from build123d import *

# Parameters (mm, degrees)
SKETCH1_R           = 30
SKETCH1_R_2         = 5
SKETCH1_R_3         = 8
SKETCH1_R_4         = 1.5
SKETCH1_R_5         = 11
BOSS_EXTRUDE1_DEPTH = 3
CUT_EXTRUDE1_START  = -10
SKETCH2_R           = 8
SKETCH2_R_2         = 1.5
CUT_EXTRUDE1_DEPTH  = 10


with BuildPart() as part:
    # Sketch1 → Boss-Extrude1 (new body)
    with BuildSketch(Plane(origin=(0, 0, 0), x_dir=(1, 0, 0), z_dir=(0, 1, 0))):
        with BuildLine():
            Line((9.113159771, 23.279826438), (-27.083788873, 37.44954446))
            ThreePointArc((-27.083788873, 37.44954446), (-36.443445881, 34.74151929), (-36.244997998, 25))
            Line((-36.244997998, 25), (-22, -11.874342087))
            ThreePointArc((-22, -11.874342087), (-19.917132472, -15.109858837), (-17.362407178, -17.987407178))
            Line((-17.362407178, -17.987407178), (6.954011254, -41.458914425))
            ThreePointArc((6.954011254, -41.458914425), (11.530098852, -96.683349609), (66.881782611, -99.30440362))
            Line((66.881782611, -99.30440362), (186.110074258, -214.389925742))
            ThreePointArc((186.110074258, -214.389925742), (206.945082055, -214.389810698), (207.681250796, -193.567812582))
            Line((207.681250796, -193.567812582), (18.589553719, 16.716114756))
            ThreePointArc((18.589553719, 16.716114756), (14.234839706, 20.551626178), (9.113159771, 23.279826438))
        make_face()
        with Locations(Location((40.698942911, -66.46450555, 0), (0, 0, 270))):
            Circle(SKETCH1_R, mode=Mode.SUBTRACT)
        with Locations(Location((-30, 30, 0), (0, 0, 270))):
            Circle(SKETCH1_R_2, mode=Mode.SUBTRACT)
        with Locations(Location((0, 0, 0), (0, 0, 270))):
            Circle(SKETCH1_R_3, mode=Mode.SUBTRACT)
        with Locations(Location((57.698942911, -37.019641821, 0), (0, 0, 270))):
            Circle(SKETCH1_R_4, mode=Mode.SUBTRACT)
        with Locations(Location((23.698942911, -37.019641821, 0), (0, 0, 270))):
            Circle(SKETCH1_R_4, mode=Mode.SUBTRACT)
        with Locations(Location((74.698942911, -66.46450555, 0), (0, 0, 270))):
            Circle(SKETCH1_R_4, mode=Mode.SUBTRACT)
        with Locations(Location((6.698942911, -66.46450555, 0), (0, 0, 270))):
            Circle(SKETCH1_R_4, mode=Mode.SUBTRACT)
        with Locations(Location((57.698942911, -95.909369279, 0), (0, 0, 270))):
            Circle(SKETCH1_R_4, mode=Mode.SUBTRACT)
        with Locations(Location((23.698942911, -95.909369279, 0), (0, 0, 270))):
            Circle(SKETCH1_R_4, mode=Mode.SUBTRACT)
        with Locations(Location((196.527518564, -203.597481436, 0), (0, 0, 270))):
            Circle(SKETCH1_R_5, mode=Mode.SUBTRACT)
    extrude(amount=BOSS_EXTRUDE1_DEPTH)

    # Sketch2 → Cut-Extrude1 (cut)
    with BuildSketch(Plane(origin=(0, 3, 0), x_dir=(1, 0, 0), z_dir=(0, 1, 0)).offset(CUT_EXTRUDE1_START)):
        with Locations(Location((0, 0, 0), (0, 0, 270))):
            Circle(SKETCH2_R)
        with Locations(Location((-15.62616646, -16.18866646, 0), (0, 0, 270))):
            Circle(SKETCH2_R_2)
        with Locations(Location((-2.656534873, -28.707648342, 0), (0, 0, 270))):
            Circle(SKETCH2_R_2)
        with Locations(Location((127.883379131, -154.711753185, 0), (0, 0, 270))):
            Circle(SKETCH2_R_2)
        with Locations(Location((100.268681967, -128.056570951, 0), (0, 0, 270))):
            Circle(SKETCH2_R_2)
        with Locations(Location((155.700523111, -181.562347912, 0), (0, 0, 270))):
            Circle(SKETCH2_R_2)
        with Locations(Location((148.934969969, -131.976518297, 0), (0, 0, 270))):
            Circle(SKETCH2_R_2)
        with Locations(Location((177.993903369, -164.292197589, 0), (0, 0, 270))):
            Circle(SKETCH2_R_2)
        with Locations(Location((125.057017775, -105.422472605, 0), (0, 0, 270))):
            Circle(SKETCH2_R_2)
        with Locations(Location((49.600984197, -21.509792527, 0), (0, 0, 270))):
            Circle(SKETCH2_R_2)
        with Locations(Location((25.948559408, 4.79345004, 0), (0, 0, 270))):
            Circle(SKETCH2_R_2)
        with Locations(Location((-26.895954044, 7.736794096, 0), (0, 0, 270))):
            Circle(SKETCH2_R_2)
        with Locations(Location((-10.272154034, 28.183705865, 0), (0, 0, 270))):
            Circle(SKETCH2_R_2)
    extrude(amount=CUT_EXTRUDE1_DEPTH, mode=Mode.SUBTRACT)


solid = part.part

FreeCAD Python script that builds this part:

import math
import FreeCAD as App
import Part
import Sketcher

V = App.Vector
Q = App.Units.Quantity

doc = App.newDocument("Part")
body = doc.addObject("PartDesign::Body", "Body")

# Sketch on XZ plane
sketch1 = body.newObject("Sketcher::SketchObject", "Sketch")
sketch1.AttachmentSupport = (doc.getObject("XZ_Plane"), [""])
sketch1.MapMode = "FlatFace"
sketch1.addGeometry([
    Part.LineSegment(V(9.11316, -23.279826, 0), V(-27.083789, -37.449544, 0)),  # 0
    Part.ArcOfCircle(Part.Circle(V(-30, -30, 0), V(0, 0, 1), 8), math.radians(141.317813), math.radians(291.378439)),  # 1
    Part.LineSegment(V(-36.244998, -25, 0), V(-22, 11.874342, 0)),  # 2
    Part.ArcOfCircle(Part.Circle(V(0, 0, 0), V(0, 0, 1), 25), math.radians(133.987091), math.radians(151.642363)),  # 3
    Part.LineSegment(V(-17.362407, 17.987407, 0), V(6.954011, 41.458914, 0)),  # 4
    Part.ArcOfCircle(Part.Circle(V(40.698943, 66.464506, 0), V(0, 0, 1), 42), math.radians(51.435083), math.radians(216.5391)),  # 5
    Part.LineSegment(V(66.881783, 99.304404, 0), V(186.110074, 214.389926, 0)),  # 6
    Part.ArcOfCircle(Part.Circle(V(196.527519, 203.597481, 0), V(0, 0, 1), 15), math.radians(-41.96254), math.radians(133.987091)),  # 7
    Part.LineSegment(V(207.681251, 193.567813, 0), V(18.589554, -16.716115, 0)),  # 8
    Part.ArcOfCircle(Part.Circle(V(0, 0, 0), V(0, 0, 1), 25), math.radians(-68.621561), math.radians(-41.96254)),  # 9
    Part.Circle(V(23.698943, 95.909369, 0), V(0, 0, 1), 1.5),  # 10
    Part.Circle(V(57.698943, 95.909369, 0), V(0, 0, 1), 1.5),  # 11
    Part.Circle(V(196.527519, 203.597481, 0), V(0, 0, 1), 11),  # 12
    Part.Circle(V(6.698943, 66.464506, 0), V(0, 0, 1), 1.5),  # 13
    Part.Circle(V(23.698943, 37.019642, 0), V(0, 0, 1), 1.5),  # 14
    Part.Circle(V(40.698943, 66.464506, 0), V(0, 0, 1), 30),  # 15
    Part.Circle(V(74.698943, 66.464506, 0), V(0, 0, 1), 1.5),  # 16
    Part.Circle(V(57.698943, 37.019642, 0), V(0, 0, 1), 1.5),  # 17
    Part.Circle(V(0, 0, 0), V(0, 0, 1), 8),  # 18
    Part.Circle(V(-30, -30, 0), V(0, 0, 1), 5),  # 19
], False)
sketch1.addConstraint([
    Sketcher.Constraint("Tangent", 0, 2, 1, 2),
    Sketcher.Constraint("Coincident", 1, 1, 2, 1),
    Sketcher.Constraint("Coincident", 2, 2, 3, 2),
    Sketcher.Constraint("Tangent", 3, 1, 4, 1),
    Sketcher.Constraint("Coincident", 4, 2, 5, 2),
    Sketcher.Constraint("Coincident", 5, 1, 6, 1),
    Sketcher.Constraint("Tangent", 6, 2, 7, 2),
    Sketcher.Constraint("Tangent", 7, 1, 8, 1),
    Sketcher.Constraint("Tangent", 8, 2, 9, 2),
    Sketcher.Constraint("Tangent", 9, 1, 0, 1),
    Sketcher.Constraint("Coincident", 3, 3, -1, 1),
    Sketcher.Constraint("Coincident", 9, 3, -1, 1),
    Sketcher.Constraint("Coincident", 18, 3, -1, 1),
    Sketcher.Constraint("Coincident", 12, 3, 7, 3),
    Sketcher.Constraint("Coincident", 15, 3, 5, 3),
    Sketcher.Constraint("Coincident", 19, 3, 1, 3),
    Sketcher.Constraint("Equal", 3, 9),
    Sketcher.Constraint("Equal", 10, 11),
    Sketcher.Constraint("Equal", 11, 13),
    Sketcher.Constraint("Equal", 13, 14),
    Sketcher.Constraint("Equal", 14, 16),
    Sketcher.Constraint("Equal", 16, 17),
    Sketcher.Constraint("Equal", 1, 18),
    Sketcher.Constraint("Parallel", 4, 6),
    Sketcher.Constraint("Horizontal", 10, 3, 11, 3),
    Sketcher.Constraint("Horizontal", 5, 3, 13, 3),
    Sketcher.Constraint("Horizontal", 15, 3, 16, 3),
    Sketcher.Constraint("Horizontal", 14, 3, 17, 3),
    Sketcher.Constraint("Vertical", 10, 3, 14, 3),
    Sketcher.Constraint("Vertical", 11, 3, 17, 3),
    Sketcher.Constraint("Diameter", 10, Q("3 mm")),
    Sketcher.Constraint("Diameter", 12, Q("22 mm")),
    Sketcher.Constraint("Diameter", 15, Q("60 mm")),
    Sketcher.Constraint("Diameter", 18, Q("16 mm")),
    Sketcher.Constraint("Diameter", 19, Q("10 mm")),
    Sketcher.Constraint("Radius", 3, Q("25 mm")),
    Sketcher.Constraint("Radius", 5, Q("42 mm")),
    Sketcher.Constraint("Radius", 7, Q("15 mm")),
    Sketcher.Constraint("DistanceX", 1, 3, -1, 1, Q("30 mm")),
    Sketcher.Constraint("DistanceY", 1, 3, -1, 1, Q("30 mm")),
    Sketcher.Constraint("DistanceY", 1, 1, -1, 1, Q("25 mm")),
    Sketcher.Constraint("DistanceX", 2, 2, -1, 1, Q("22 mm")),
    Sketcher.Constraint("DistanceX", 10, 3, 5, 3, Q("17 mm")),
    Sketcher.Constraint("DistanceX", 10, 3, 11, 3, Q("34 mm")),
    Sketcher.Constraint("DistanceX", 13, 3, 5, 3, Q("34 mm")),
    Sketcher.Constraint("DistanceX", 5, 3, 16, 3, Q("34 mm")),
    Sketcher.Constraint("DistanceY", 16, 3, 5, 1, Q("32.839898 mm")),
    Sketcher.Constraint("Distance", 6, Q("165.710781 mm")),
    Sketcher.Constraint("DistanceX", -1, 1, 7, 3, Q("196.527519 mm")),
    Sketcher.Constraint("DistanceY", -1, 1, 7, 3, Q("203.597481 mm")),
    Sketcher.Constraint("DistanceY", -1, 1, 10, 3, Q("95.909369 mm")),
    Sketcher.Constraint("DistanceY", -1, 1, 14, 3, Q("37.019642 mm")),
    Sketcher.Constraint("DistanceX", -1, 1, 4, 2, Q("6.954011 mm")),
])
pad1 = body.newObject("PartDesign::Pad", "Pad")
pad1.Profile = sketch1
pad1.Length = 3
pad1.Reversed = True

# Sketch on XZ plane
sketch2 = body.newObject("Sketcher::SketchObject", "Sketch001")
sketch2.AttachmentSupport = (doc.getObject("XZ_Plane"), [""])
sketch2.MapMode = "FlatFace"
sketch2.AttachmentOffset = App.Placement(V(0, 0, 7), App.Rotation())
sketch2.addGeometry([
    Part.Circle(V(0, 0, 0), V(0, 0, 1), 8),  # 0
    Part.Circle(V(-15.626166, 16.188666, 0), V(0, 0, 1), 1.5),  # 1
    Part.Circle(V(-2.656535, 28.707648, 0), V(0, 0, 1), 1.5),  # 2
    Part.Circle(V(127.883379, 154.711753, 0), V(0, 0, 1), 1.5),  # 3
    Part.Circle(V(100.268682, 128.056571, 0), V(0, 0, 1), 1.5),  # 4
    Part.Circle(V(155.700523, 181.562348, 0), V(0, 0, 1), 1.5),  # 5
    Part.Circle(V(148.93497, 131.976518, 0), V(0, 0, 1), 1.5),  # 6
    Part.Circle(V(177.993903, 164.292198, 0), V(0, 0, 1), 1.5),  # 7
    Part.Circle(V(125.057018, 105.422473, 0), V(0, 0, 1), 1.5),  # 8
    Part.Circle(V(49.600984, 21.509793, 0), V(0, 0, 1), 1.5),  # 9
    Part.Circle(V(25.948559, -4.79345, 0), V(0, 0, 1), 1.5),  # 10
    Part.Circle(V(-26.895954, -7.736794, 0), V(0, 0, 1), 1.5),  # 11
    Part.Circle(V(-10.272154, -28.183706, 0), V(0, 0, 1), 1.5),  # 12
], False)
sketch2.addConstraint([
    Sketcher.Constraint("Coincident", 0, 3, -1, 1),
    Sketcher.Constraint("Equal", 1, 2),
    Sketcher.Constraint("Equal", 2, 3),
    Sketcher.Constraint("Equal", 3, 4),
    Sketcher.Constraint("Equal", 4, 5),
    Sketcher.Constraint("Equal", 5, 6),
    Sketcher.Constraint("Equal", 6, 7),
    Sketcher.Constraint("Equal", 7, 8),
    Sketcher.Constraint("Equal", 8, 9),
    Sketcher.Constraint("Equal", 9, 10),
    Sketcher.Constraint("Equal", 10, 11),
    Sketcher.Constraint("Equal", 11, 12),
    Sketcher.Constraint("Diameter", 0, Q("16 mm")),
    Sketcher.Constraint("Diameter", 1, Q("3 mm")),
    Sketcher.Constraint("DistanceY", 2, 3, 5, 3, Q("152.8547 mm")),
    Sketcher.Constraint("DistanceY", 8, 3, 4, 3, Q("22.634098 mm")),
    Sketcher.Constraint("DistanceY", 10, 3, 2, 3, Q("33.501098 mm")),
    Sketcher.Constraint("DistanceX", 11, 3, 12, 3, Q("16.6238 mm")),
    Sketcher.Constraint("DistanceY", -1, 1, 2, 3, Q("28.707648 mm")),
    Sketcher.Constraint("DistanceX", -1, 1, 3, 3, Q("127.883379 mm")),
    Sketcher.Constraint("DistanceX", -1, 1, 4, 3, Q("100.268682 mm")),
    Sketcher.Constraint("DistanceY", -1, 1, 4, 3, Q("128.056571 mm")),
    Sketcher.Constraint("DistanceX", -1, 1, 6, 3, Q("148.93497 mm")),
    Sketcher.Constraint("DistanceY", -1, 1, 6, 3, Q("131.976518 mm")),
    Sketcher.Constraint("DistanceX", -1, 1, 10, 3, Q("25.948559 mm")),
    Sketcher.Constraint("DistanceX", 1, 3, 2, 3, Q("12.969632 mm")),
    Sketcher.Constraint("DistanceY", 1, 3, 2, 3, Q("12.518982 mm")),
    Sketcher.Constraint("DistanceX", 1, 3, 4, 3, Q("115.894848 mm")),
    Sketcher.Constraint("DistanceX", 4, 3, 5, 3, Q("55.431841 mm")),
    Sketcher.Constraint("DistanceX", 5, 3, 7, 3, Q("22.29338 mm")),
    Sketcher.Constraint("DistanceY", 7, 3, 5, 3, Q("17.27015 mm")),
    Sketcher.Constraint("DistanceX", 8, 3, 3, 3, Q("2.826361 mm")),
    Sketcher.Constraint("DistanceY", 8, 3, 3, 3, Q("49.289281 mm")),
    Sketcher.Constraint("DistanceX", 2, 3, 9, 3, Q("52.257519 mm")),
    Sketcher.Constraint("DistanceY", 9, 3, 8, 3, Q("83.91268 mm")),
    Sketcher.Constraint("DistanceY", 11, 3, 1, 3, Q("23.925461 mm")),
    Sketcher.Constraint("DistanceX", 11, 3, 2, 3, Q("24.239419 mm")),
    Sketcher.Constraint("DistanceY", 12, 3, 11, 3, Q("20.446912 mm")),
])
pocket1 = body.newObject("PartDesign::Pocket", "Pocket")
pocket1.Profile = sketch2
pocket1.Length = 10

doc.recompute()
